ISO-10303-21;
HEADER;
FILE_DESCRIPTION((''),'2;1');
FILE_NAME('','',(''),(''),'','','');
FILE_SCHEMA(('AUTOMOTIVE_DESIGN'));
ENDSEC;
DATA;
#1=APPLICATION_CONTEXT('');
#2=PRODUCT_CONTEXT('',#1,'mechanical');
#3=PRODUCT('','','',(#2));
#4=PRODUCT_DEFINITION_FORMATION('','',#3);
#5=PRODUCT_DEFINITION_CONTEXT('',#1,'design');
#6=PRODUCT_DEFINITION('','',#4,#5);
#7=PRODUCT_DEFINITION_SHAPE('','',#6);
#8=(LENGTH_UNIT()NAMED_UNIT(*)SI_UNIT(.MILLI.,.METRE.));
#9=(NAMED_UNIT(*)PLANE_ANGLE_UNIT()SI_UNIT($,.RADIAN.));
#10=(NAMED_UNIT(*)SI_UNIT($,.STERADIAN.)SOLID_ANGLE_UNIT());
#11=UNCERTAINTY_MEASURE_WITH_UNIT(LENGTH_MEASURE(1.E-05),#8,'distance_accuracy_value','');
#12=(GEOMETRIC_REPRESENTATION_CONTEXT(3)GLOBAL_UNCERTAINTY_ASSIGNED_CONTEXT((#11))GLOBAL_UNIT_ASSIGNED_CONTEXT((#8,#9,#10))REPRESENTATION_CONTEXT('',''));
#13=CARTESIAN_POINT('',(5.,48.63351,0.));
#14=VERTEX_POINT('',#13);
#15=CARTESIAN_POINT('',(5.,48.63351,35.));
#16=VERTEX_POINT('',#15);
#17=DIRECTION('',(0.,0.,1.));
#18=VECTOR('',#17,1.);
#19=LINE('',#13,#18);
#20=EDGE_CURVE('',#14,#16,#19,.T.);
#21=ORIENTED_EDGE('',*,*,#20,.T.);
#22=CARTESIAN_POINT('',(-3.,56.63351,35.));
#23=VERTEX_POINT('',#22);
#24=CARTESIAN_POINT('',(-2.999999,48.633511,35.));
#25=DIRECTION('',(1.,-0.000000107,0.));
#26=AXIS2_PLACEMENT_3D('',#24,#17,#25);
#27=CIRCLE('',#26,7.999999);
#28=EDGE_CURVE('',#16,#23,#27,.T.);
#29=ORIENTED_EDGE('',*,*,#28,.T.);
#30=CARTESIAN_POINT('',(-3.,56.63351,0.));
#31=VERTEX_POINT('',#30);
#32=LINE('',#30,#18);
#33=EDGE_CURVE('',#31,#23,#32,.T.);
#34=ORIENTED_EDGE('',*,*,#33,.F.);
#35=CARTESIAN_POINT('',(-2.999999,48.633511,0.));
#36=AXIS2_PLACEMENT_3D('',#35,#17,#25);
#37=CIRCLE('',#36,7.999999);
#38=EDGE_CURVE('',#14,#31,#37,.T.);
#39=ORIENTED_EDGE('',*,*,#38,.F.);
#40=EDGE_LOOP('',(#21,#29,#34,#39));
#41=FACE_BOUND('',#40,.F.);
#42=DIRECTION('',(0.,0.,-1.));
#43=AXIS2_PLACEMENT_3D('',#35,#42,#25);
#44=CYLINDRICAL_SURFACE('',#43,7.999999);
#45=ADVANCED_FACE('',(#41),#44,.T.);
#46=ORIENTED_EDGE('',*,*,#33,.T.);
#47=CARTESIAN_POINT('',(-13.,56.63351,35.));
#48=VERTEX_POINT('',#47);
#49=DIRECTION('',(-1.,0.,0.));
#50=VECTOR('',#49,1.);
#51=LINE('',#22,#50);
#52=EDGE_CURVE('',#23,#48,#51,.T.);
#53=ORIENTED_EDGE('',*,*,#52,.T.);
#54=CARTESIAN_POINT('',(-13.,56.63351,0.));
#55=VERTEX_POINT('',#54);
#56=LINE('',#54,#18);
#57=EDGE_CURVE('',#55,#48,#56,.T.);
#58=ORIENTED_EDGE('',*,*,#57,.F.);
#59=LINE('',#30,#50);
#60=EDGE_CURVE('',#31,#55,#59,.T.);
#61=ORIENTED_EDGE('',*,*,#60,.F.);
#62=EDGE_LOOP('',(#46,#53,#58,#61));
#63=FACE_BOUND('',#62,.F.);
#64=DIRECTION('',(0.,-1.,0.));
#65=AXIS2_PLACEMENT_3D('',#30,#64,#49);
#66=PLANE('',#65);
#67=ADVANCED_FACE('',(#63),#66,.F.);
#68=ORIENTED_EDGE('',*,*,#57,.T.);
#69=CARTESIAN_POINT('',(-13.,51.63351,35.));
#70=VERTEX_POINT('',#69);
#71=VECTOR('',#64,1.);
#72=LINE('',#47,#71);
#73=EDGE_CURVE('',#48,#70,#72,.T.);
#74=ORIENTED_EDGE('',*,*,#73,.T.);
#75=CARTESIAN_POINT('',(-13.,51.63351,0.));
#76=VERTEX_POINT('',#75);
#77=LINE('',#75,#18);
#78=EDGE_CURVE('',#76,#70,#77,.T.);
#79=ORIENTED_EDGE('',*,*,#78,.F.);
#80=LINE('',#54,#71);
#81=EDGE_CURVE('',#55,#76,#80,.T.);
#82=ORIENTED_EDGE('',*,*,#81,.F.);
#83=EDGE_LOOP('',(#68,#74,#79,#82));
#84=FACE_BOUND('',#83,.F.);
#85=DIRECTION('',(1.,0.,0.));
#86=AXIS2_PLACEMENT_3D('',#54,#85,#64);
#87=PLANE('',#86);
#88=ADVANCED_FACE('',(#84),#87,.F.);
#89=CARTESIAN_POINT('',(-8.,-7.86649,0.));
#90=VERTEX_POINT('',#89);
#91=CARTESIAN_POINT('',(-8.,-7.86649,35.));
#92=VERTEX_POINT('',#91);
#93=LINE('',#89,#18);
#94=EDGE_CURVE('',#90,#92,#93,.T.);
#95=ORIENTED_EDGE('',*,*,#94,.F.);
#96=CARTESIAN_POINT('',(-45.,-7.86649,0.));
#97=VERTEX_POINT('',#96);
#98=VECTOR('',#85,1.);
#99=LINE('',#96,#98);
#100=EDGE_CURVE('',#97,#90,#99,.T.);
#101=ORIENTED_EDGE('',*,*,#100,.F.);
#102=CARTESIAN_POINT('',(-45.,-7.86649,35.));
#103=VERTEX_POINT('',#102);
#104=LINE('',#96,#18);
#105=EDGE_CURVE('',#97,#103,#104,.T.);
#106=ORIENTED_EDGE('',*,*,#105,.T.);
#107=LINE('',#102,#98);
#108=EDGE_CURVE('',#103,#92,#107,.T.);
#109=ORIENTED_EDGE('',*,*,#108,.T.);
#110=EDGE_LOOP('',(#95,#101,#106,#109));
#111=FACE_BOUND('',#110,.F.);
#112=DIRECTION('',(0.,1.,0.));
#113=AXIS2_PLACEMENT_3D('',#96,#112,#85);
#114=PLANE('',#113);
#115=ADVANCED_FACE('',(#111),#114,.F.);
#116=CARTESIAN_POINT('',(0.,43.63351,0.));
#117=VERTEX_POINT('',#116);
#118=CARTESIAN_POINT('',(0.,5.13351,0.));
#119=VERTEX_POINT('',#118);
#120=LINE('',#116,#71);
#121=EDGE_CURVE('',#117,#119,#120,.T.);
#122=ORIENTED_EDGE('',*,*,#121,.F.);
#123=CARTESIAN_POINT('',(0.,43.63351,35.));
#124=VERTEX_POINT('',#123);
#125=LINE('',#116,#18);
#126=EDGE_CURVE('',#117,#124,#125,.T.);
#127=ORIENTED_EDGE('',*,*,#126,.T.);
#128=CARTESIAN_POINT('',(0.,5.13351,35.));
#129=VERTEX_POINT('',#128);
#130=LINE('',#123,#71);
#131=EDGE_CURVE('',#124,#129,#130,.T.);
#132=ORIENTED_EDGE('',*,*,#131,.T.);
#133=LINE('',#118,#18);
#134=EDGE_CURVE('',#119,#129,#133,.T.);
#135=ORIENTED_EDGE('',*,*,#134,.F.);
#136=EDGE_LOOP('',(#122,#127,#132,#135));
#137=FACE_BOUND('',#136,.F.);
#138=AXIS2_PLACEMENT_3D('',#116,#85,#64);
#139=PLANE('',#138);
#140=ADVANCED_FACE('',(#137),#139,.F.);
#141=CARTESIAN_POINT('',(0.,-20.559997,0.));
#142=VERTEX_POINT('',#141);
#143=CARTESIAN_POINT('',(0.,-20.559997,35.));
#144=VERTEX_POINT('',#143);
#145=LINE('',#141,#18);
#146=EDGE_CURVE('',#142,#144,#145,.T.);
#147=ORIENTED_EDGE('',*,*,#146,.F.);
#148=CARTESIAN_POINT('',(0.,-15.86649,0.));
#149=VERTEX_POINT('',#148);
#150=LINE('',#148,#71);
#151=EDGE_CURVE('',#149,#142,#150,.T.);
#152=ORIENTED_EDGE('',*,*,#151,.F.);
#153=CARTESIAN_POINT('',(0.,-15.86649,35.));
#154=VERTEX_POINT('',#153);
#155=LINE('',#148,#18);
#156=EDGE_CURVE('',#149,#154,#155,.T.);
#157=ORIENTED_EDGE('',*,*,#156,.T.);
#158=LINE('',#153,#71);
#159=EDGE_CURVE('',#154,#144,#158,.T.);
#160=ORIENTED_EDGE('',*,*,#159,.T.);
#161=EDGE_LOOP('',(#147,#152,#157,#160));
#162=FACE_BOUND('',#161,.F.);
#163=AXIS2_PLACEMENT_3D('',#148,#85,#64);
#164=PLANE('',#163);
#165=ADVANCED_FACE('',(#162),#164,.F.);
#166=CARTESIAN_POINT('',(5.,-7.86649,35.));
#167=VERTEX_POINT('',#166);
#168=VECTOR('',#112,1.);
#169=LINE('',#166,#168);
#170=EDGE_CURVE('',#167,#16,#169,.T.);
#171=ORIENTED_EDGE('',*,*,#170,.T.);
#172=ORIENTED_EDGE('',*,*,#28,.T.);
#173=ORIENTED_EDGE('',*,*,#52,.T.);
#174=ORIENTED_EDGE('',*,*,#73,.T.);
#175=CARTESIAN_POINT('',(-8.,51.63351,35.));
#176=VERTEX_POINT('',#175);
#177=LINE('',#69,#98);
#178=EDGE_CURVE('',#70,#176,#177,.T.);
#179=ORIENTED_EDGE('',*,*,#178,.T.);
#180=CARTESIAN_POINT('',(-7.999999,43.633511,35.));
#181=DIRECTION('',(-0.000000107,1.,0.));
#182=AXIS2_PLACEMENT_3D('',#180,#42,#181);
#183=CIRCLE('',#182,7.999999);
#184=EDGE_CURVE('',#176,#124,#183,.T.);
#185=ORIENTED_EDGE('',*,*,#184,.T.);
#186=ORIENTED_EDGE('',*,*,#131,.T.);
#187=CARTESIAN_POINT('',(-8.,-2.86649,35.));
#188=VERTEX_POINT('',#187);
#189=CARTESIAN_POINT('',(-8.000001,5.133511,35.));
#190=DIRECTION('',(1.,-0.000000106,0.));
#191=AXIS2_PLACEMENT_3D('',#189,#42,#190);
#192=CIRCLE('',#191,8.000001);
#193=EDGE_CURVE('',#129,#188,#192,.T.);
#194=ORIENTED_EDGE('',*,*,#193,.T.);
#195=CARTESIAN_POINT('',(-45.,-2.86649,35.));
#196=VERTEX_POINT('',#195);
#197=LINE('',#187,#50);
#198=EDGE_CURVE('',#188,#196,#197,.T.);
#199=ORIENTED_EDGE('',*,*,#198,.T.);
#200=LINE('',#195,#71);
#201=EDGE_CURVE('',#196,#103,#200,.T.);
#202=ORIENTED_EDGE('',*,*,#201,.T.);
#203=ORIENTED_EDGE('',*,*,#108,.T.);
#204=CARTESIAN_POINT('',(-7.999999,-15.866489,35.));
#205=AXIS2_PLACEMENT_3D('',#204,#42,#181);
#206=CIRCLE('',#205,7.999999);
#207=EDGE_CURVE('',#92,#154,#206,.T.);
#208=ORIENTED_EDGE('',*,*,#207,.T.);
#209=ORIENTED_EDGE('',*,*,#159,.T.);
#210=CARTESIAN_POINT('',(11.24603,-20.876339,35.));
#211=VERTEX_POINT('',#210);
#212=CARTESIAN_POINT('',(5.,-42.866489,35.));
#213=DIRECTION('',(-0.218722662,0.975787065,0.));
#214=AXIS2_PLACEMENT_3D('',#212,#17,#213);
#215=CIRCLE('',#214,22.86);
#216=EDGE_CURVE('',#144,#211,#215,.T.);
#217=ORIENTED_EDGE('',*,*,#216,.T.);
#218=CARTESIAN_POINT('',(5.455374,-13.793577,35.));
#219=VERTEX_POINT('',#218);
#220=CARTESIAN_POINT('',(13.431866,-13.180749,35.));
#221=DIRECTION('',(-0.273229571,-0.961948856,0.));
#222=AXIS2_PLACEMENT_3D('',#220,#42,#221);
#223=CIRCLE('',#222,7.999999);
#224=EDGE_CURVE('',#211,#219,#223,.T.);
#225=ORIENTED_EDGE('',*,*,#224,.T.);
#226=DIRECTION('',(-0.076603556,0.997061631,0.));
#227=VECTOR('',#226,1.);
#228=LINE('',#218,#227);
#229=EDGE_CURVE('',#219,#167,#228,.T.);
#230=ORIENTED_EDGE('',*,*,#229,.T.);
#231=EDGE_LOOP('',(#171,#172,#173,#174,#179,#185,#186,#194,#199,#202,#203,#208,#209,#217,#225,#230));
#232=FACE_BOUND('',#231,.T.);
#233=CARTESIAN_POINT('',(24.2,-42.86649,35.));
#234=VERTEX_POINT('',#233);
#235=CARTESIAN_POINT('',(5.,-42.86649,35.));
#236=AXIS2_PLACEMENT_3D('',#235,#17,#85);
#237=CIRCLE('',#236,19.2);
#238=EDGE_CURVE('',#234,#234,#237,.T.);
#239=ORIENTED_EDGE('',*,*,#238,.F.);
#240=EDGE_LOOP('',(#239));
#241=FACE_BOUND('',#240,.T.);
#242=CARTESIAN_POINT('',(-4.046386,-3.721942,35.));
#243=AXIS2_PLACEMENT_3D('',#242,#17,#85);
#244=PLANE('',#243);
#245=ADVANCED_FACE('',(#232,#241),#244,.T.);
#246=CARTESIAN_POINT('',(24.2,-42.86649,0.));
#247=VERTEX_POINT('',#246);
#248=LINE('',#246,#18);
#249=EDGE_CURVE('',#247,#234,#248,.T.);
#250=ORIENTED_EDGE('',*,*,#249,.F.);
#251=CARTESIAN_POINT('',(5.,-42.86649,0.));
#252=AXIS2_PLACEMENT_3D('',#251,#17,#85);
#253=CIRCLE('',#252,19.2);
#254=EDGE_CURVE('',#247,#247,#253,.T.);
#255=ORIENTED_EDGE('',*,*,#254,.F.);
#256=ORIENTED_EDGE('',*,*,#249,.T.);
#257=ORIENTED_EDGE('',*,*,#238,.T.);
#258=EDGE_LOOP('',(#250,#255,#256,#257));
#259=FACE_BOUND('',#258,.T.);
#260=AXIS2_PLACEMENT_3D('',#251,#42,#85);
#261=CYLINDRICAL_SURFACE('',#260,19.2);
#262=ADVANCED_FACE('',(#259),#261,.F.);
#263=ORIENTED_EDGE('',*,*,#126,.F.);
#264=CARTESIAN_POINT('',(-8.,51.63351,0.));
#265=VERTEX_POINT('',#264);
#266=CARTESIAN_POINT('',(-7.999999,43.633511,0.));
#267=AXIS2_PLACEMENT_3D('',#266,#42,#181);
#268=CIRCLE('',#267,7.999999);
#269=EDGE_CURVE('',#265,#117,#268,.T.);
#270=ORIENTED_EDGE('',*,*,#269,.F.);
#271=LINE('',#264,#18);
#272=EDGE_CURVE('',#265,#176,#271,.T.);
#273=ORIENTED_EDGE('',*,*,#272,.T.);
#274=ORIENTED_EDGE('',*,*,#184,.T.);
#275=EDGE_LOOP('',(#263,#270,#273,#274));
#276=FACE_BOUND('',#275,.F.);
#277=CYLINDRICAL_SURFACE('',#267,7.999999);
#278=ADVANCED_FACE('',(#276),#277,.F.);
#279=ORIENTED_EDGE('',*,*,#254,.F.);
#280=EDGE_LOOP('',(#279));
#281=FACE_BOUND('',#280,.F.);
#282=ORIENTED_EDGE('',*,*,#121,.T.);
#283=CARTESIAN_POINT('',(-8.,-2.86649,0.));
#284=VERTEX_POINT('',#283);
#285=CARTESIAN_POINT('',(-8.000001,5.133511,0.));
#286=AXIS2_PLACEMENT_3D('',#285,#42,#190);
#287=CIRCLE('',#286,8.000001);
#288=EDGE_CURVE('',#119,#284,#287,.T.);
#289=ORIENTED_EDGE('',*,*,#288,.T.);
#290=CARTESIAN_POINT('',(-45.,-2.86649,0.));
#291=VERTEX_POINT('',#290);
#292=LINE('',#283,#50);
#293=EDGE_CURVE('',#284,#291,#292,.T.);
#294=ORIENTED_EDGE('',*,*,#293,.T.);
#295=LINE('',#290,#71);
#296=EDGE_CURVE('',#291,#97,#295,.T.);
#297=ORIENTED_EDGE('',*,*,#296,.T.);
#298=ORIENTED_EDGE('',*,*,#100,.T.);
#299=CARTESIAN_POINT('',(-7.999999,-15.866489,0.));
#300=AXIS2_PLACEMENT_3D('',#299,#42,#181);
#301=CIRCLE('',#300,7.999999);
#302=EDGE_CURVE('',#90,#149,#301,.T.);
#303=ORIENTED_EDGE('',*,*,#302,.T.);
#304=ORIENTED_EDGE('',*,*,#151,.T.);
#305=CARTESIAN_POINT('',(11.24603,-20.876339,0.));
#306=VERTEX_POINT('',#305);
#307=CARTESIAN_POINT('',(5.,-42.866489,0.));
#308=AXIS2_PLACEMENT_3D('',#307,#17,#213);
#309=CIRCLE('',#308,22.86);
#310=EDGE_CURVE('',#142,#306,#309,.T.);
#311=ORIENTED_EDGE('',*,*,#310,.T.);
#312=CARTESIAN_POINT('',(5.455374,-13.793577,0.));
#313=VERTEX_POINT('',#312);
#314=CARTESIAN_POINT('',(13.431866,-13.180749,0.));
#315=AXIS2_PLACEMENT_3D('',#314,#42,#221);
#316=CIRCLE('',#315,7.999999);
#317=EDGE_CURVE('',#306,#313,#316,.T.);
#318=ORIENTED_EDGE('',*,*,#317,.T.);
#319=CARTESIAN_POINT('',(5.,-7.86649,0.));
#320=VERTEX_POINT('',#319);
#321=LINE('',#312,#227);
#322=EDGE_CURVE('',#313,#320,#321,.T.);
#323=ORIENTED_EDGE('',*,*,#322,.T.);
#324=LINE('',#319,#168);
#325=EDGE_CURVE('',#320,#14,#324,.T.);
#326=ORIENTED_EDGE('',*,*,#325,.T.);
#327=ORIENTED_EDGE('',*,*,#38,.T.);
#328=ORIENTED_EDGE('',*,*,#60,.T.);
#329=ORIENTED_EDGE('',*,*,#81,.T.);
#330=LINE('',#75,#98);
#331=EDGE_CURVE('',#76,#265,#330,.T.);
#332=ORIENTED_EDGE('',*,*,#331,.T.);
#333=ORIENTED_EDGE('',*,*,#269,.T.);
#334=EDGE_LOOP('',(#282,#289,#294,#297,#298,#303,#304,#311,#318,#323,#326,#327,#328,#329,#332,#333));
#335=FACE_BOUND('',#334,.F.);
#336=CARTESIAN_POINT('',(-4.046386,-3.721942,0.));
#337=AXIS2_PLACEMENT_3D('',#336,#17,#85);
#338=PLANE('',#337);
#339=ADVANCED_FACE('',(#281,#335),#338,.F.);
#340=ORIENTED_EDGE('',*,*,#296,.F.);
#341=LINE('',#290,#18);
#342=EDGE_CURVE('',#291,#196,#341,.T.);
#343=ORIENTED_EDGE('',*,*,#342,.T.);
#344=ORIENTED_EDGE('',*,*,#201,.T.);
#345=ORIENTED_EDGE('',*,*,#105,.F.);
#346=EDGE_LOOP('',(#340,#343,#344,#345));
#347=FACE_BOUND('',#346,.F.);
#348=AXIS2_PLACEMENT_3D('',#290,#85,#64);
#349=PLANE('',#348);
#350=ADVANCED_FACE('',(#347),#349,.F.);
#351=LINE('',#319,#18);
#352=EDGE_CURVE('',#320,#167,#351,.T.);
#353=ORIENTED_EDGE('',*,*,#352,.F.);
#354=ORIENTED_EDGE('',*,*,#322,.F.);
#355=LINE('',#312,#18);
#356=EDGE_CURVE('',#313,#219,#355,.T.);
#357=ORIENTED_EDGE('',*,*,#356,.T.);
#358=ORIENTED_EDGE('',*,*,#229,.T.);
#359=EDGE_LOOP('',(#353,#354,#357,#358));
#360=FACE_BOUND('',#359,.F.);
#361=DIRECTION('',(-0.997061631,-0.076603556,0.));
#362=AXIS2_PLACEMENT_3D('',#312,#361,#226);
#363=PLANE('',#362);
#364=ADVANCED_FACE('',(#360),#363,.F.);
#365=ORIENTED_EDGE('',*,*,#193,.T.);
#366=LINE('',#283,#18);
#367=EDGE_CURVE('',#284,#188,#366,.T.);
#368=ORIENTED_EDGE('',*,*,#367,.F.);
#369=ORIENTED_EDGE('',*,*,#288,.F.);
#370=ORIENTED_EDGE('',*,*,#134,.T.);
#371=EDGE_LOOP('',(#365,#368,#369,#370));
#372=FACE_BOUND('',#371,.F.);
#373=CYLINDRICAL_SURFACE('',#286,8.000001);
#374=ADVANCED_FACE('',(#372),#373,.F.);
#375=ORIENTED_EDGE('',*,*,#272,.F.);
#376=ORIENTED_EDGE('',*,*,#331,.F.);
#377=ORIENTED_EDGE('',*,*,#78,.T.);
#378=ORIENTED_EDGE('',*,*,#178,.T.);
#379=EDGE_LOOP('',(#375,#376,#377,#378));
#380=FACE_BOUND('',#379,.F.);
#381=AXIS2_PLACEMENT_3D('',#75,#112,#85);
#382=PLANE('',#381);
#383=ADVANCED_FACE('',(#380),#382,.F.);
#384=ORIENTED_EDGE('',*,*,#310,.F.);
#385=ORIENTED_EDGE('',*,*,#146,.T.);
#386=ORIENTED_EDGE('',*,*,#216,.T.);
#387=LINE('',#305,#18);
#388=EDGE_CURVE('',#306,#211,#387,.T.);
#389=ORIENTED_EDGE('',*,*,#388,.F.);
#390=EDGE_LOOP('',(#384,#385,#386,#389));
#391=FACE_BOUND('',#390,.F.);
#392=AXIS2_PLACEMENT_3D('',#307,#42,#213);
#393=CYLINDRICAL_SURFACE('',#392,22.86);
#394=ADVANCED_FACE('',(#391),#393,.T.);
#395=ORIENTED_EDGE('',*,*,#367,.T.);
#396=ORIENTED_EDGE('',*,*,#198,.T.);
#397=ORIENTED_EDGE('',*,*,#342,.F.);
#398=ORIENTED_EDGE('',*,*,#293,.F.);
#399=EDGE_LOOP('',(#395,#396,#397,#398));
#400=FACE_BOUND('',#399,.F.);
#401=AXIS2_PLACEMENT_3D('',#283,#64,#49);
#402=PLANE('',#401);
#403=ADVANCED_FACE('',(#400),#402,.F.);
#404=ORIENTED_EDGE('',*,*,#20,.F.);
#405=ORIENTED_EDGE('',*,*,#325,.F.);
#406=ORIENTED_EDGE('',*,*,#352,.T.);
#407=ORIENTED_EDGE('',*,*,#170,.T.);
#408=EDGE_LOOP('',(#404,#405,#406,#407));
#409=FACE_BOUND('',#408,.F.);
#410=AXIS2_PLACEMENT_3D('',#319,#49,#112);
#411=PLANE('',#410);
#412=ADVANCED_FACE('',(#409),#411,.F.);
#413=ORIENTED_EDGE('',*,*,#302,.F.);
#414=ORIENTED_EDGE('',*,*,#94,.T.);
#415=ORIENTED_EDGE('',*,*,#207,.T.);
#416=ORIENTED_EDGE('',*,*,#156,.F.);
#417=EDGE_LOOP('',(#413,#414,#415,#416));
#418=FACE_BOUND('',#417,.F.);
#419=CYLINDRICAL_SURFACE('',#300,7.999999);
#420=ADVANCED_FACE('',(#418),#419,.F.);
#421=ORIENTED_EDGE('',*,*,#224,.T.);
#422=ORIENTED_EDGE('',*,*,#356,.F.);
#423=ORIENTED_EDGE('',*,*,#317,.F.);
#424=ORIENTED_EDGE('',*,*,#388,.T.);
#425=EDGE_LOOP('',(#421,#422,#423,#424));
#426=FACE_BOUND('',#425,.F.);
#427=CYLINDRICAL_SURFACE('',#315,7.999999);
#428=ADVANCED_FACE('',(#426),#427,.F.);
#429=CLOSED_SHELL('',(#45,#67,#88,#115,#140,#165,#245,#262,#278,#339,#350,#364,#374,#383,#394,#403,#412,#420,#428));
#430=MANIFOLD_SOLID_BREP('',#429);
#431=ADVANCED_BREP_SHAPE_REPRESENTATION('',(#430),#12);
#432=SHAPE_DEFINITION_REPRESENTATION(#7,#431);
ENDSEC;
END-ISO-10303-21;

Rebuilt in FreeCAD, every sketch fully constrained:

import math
import FreeCAD as App
import Part
import Sketcher
Q = App.Units.Quantity

doc = App.newDocument("Part")
body = doc.addObject("PartDesign::Body", "Body")

# Sketch on XY plane
sketch1 = doc.addObject("Sketcher::SketchObject", "Sketch")
body.addObject(sketch1)
sketch1.AttachmentSupport = (doc.XY_Plane, [""])
sketch1.MapMode = "FlatFace"
sketch1.addGeometry([
    Part.LineSegment(App.Vector(-45, -2.9, 0), App.Vector(-45, -7.9, 0)),  # 0
    Part.LineSegment(App.Vector(-45, -7.9, 0), App.Vector(-8, -7.9, 0)),  # 1
    Part.ArcOfCircle(Part.Circle(App.Vector(-8, -15.9, 0), App.Vector(0, 0, 1), 8), math.radians(0), math.radians(90)),  # 2
    Part.LineSegment(App.Vector(0, -15.9, 0), App.Vector(0, -20.6, 0)),  # 3
    Part.ArcOfCircle(Part.Circle(App.Vector(5, -42.9, 0), App.Vector(0, 0, 1), 22.9), math.radians(103), math.radians(434)),  # 4
    Part.ArcOfCircle(Part.Circle(App.Vector(13.4, -13.2, 0), App.Vector(0, 0, 1), 8), math.radians(-176), math.radians(-106)),  # 5
    Part.LineSegment(App.Vector(5.5, -13.8, 0), App.Vector(5, -7.9, 0)),  # 6
    Part.LineSegment(App.Vector(5, -7.9, 0), App.Vector(5, 48.6, 0)),  # 7
    Part.ArcOfCircle(Part.Circle(App.Vector(-3, 48.6, 0), App.Vector(0, 0, 1), 8), math.radians(0), math.radians(90)),  # 8
    Part.LineSegment(App.Vector(-3, 56.6, 0), App.Vector(-13, 56.6, 0)),  # 9
    Part.LineSegment(App.Vector(-13, 56.6, 0), App.Vector(-13, 51.6, 0)),  # 10
    Part.LineSegment(App.Vector(-13, 51.6, 0), App.Vector(-8, 51.6, 0)),  # 11
    Part.ArcOfCircle(Part.Circle(App.Vector(-8, 43.6, 0), App.Vector(0, 0, 1), 8), math.radians(0), math.radians(90)),  # 12
    Part.LineSegment(App.Vector(0, 43.6, 0), App.Vector(0, 5.1, 0)),  # 13
    Part.ArcOfCircle(Part.Circle(App.Vector(-8, 5.1, 0), App.Vector(0, 0, 1), 8), math.radians(-90), math.radians(0)),  # 14
    Part.LineSegment(App.Vector(-8, -2.9, 0), App.Vector(-45, -2.9, 0)),  # 15
    Part.Circle(App.Vector(5, -42.9, 0), App.Vector(0, 0, 1), 19.2),  # 16
], False)
sketch1.addConstraint([
    Sketcher.Constraint("Coincident", 0, 2, 1, 1),
    Sketcher.Constraint("Tangent", 1, 2, 2, 2),
    Sketcher.Constraint("Tangent", 2, 1, 3, 1),
    Sketcher.Constraint("Coincident", 3, 2, 4, 1),
    Sketcher.Constraint("Tangent", 4, 2, 5, 2),
    Sketcher.Constraint("Tangent", 5, 1, 6, 1),
    Sketcher.Constraint("Coincident", 6, 2, 7, 1),
    Sketcher.Constraint("Tangent", 7, 2, 8, 1),
    Sketcher.Constraint("Tangent", 8, 2, 9, 1),
    Sketcher.Constraint("Coincident", 9, 2, 10, 1),
    Sketcher.Constraint("Coincident", 10, 2, 11, 1),
    Sketcher.Constraint("Tangent", 11, 2, 12, 2),
    Sketcher.Constraint("Tangent", 12, 1, 13, 1),
    Sketcher.Constraint("Tangent", 13, 2, 14, 2),
    Sketcher.Constraint("Tangent", 14, 1, 15, 1),
    Sketcher.Constraint("Coincident", 15, 2, 0, 1),
    Sketcher.Constraint("Vertical", 0),
    Sketcher.Constraint("Horizontal", 1),
    Sketcher.Constraint("Vertical", 3),
    Sketcher.Constraint("Vertical", 7),
    Sketcher.Constraint("Horizontal", 9),
    Sketcher.Constraint("Vertical", 10),
    Sketcher.Constraint("Horizontal", 11),
    Sketcher.Constraint("Vertical", 13),
    Sketcher.Constraint("Horizontal", 15),
    Sketcher.Constraint("Coincident", 16, 3, 4, 3),
    Sketcher.Constraint("Equal", 2, 5),
    Sketcher.Constraint("Equal", 5, 8),
    Sketcher.Constraint("Equal", 8, 12),
    Sketcher.Constraint("Equal", 12, 14),
    Sketcher.Constraint("PointOnObject", 2, 1, -2),
    Sketcher.Constraint("PointOnObject", 12, 1, -2),
    Sketcher.Constraint("Horizontal", 1, 2, 6, 2),
    Sketcher.Constraint("Vertical", 16, 3, 6, 2),
    Sketcher.Constraint("Equal", 11, 0),
    Sketcher.Constraint("Equal", 0, 10),
    Sketcher.Constraint("Radius", 2, Q("7.999999 mm")),
    Sketcher.Constraint("Diameter", 16, Q("38.4 mm")),
    Sketcher.Constraint("DistanceX", 1, 1, 1, 2, Q("37 mm")),
    Sketcher.Constraint("DistanceX", 9, 2, 9, 1, Q("10 mm")),
    Sketcher.Constraint("DistanceX", 11, 1, 11, 2, Q("5 mm")),
    Sketcher.Constraint("Radius", 4, Q("22.86 mm")),
    Sketcher.Constraint("DistanceY", 7, 1, 7, 2, Q("56.5 mm")),
    Sketcher.Constraint("DistanceY", 4, 3, 2, 3, Q("27 mm")),
    Sketcher.Constraint("DistanceY", 2, 3, -1, 1, Q("15.866489 mm")),
    Sketcher.Constraint("DistanceY", 5, 3, -1, 1, Q("13.180749 mm")),
])
pad1 = doc.addObject("PartDesign::Pad", "Pad")
body.addObject(pad1)
pad1.Profile = sketch1
pad1.Length = 35

doc.recompute()
